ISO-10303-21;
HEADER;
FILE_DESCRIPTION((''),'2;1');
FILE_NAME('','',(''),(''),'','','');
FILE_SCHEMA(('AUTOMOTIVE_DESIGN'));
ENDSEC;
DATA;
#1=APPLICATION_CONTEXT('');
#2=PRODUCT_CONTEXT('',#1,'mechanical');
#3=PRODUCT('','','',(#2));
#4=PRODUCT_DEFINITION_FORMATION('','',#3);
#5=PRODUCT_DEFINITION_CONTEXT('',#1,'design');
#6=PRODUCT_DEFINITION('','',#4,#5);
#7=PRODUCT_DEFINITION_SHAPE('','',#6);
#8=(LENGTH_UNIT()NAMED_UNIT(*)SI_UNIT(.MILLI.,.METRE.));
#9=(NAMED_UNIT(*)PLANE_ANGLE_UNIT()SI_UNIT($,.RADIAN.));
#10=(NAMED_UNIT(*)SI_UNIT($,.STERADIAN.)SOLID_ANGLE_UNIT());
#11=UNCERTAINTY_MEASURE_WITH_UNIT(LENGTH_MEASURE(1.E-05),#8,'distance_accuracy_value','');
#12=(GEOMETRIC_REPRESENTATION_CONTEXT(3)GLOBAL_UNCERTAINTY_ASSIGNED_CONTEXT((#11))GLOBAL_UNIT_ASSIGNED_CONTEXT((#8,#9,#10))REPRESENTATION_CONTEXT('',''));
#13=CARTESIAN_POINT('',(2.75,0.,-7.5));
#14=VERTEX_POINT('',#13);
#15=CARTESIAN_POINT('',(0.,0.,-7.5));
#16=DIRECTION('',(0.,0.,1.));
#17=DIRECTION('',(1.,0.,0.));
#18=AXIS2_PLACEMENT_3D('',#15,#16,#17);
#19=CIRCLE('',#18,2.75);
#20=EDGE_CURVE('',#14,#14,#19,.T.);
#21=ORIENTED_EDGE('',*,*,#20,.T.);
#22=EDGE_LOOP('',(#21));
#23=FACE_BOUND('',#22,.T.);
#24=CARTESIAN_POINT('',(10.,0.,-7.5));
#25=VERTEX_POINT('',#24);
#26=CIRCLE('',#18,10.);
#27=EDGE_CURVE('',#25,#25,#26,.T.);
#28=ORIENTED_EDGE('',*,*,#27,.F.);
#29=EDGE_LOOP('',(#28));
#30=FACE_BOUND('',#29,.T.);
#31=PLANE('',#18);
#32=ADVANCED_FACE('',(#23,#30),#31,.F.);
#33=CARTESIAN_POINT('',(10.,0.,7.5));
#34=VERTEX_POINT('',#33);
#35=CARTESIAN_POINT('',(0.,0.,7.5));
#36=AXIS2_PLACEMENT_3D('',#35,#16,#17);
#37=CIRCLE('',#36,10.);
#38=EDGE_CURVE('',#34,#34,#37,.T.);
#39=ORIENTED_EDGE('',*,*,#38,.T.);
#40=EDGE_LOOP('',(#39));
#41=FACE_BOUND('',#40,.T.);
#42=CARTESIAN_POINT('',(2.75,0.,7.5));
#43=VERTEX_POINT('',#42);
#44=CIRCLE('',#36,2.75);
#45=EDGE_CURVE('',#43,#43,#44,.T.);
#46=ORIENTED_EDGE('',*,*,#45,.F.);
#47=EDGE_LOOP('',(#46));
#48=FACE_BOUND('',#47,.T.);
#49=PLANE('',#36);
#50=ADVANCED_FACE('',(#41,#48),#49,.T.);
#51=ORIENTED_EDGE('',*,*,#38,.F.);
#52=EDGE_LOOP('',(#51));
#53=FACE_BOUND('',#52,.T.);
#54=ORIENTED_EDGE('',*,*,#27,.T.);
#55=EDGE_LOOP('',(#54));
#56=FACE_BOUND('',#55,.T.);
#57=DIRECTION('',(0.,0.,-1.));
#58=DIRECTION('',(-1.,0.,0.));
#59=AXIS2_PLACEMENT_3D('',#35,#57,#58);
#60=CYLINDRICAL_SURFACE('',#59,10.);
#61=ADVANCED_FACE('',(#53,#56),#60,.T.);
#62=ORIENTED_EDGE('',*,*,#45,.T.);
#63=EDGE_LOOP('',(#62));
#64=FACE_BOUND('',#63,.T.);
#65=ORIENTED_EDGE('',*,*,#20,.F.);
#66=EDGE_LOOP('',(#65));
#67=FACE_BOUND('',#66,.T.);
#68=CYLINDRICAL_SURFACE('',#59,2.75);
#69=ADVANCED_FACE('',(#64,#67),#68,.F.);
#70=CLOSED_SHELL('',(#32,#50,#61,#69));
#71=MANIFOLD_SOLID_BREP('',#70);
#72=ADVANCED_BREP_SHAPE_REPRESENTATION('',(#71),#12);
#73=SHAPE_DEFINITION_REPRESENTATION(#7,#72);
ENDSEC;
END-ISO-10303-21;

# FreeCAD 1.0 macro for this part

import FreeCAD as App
import Part
import Sketcher
from FreeCAD import Vector
Q = App.Units.Quantity

doc = App.newDocument("Part")
params = doc.addObject("Spreadsheet::Sheet", "Params")
for row, (alias, value) in enumerate([
    ("sketch1_diameter", "20 mm"),
    ("sketch1_diameter2", "5.5 mm"),
    ("pad1_length", "15 mm"),
], start=1):
    params.set(f"A{row}", alias)
    params.set(f"B{row}", "=" + value)
    params.setAlias(f"B{row}", alias)

body = doc.addObject("PartDesign::Body", "Body")

sketch1 = body.newObject("Sketcher::SketchObject", "Sketch")
sketch1.AttachmentSupport = (doc.getObject("XY_Plane"), [""])
sketch1.MapMode = "FlatFace"
sketch1.addGeometry([
    Part.Circle(Vector(0, 0, 0), Vector(0, 0, 1), 10),
    Part.Circle(Vector(0, 0, 0), Vector(0, 0, 1), 2.75),
], False)
sketch1.addConstraint([
    Sketcher.Constraint("Coincident", 0, 3, -1, 1),
    Sketcher.Constraint("Coincident", 1, 3, -1, 1),
    Sketcher.Constraint("Diameter", 0, Q("20 mm")),
    Sketcher.Constraint("Diameter", 1, Q("5.5 mm")),
])
sketch1.setExpression("Constraints[2]", "Params.sketch1_diameter")
sketch1.setExpression("Constraints[3]", "Params.sketch1_diameter2")
pad1 = body.newObject("PartDesign::Pad", "Pad")
pad1.Profile = sketch1
pad1.setExpression("Length", "Params.pad1_length")
pad1.Midplane = True

doc.recompute()
